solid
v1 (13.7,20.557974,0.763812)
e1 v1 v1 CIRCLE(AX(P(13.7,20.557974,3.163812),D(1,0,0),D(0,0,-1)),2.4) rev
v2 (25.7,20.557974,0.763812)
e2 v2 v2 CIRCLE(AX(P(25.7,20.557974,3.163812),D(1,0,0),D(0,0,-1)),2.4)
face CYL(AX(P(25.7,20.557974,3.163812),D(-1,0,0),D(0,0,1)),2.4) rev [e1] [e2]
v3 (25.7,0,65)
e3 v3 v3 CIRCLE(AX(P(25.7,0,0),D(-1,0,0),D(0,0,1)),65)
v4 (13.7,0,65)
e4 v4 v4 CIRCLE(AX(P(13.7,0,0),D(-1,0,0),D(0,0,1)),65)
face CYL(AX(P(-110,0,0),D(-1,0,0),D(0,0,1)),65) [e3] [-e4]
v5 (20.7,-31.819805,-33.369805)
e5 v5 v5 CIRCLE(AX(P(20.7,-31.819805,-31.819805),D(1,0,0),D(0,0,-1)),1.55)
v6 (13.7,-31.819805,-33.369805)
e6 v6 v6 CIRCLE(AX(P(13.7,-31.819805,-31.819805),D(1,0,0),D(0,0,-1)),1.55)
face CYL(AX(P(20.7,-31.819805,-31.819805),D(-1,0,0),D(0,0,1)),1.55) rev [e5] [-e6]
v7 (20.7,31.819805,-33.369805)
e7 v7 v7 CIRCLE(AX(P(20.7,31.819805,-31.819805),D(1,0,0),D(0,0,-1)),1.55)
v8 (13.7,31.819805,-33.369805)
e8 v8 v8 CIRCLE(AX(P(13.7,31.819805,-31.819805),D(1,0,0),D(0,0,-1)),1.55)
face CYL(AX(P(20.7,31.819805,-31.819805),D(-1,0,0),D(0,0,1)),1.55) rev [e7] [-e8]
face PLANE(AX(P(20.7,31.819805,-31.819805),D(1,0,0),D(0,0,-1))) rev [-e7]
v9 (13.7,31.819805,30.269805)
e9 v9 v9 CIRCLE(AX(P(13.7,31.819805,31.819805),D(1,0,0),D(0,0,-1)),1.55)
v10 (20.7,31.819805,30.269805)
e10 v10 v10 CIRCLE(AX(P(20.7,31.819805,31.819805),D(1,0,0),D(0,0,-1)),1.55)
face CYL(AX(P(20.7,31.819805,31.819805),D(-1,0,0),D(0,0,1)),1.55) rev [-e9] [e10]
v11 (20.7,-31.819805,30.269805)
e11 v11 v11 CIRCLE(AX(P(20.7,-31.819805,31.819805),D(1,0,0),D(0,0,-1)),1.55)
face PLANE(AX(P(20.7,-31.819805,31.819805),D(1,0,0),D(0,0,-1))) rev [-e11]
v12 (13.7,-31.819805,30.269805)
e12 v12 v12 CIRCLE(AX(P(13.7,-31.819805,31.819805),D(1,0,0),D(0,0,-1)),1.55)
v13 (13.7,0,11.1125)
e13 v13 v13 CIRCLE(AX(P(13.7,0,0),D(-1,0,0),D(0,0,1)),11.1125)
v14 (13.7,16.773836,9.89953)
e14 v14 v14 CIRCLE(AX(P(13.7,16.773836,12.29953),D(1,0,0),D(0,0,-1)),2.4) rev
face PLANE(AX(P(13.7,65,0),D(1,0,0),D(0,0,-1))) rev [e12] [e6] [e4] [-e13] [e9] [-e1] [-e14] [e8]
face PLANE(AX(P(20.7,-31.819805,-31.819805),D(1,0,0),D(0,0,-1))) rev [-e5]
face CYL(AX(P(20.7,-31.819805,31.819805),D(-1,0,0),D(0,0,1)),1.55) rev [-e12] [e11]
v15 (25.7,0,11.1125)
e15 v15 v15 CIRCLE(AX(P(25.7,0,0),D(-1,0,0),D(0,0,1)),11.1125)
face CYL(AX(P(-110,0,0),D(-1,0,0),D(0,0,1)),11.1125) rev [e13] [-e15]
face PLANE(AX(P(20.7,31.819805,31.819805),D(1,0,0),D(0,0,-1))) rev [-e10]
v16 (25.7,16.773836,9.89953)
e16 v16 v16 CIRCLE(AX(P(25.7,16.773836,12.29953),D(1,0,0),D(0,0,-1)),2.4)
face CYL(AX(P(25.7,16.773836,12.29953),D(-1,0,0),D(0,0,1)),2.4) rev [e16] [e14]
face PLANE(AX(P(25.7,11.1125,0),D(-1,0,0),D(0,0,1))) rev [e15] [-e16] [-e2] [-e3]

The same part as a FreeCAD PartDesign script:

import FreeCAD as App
import Part
import Sketcher

V = App.Vector

doc = App.newDocument("Part")
body = doc.addObject("PartDesign::Body", "Body")

# Sketch on XY plane
sketch1 = body.newObject("Sketcher::SketchObject", "Sketch")
sketch1.AttachmentSupport = (doc.getObject("XY_Plane"), [""])
sketch1.MapMode = "FlatFace"
sketch1.addGeometry(Part.LineSegment(V(14, 65, 0), V(14, 11, 0)), False)
sketch1.addGeometry(Part.LineSegment(V(14, 11, 0), V(26, 11, 0)), False)
sketch1.addGeometry(Part.LineSegment(V(26, 11, 0), V(26, 65, 0)), False)
sketch1.addGeometry(Part.LineSegment(V(26, 65, 0), V(14, 65, 0)), False)
sketch1.addConstraint(Sketcher.Constraint("Coincident", 0, 2, 1, 1))
sketch1.addConstraint(Sketcher.Constraint("Coincident", 1, 2, 2, 1))
sketch1.addConstraint(Sketcher.Constraint("Coincident", 2, 2, 3, 1))
sketch1.addConstraint(Sketcher.Constraint("Coincident", 3, 2, 0, 1))
sketch1.addConstraint(Sketcher.Constraint("Vertical", 0))
sketch1.addConstraint(Sketcher.Constraint("Horizontal", 1))
sketch1.addConstraint(Sketcher.Constraint("Vertical", 2))
sketch1.addConstraint(Sketcher.Constraint("Horizontal", 3))
sketch1.addConstraint(Sketcher.Constraint("DistanceX", 1, 1, 1, 2, 12.0))
sketch1.addConstraint(Sketcher.Constraint("DistanceY", -1, 1, 2, 2, 65.0))
sketch1.addConstraint(Sketcher.Constraint("DistanceX", -1, 1, 0, 2, 13.7))
sketch1.addConstraint(Sketcher.Constraint("DistanceY", 0, 2, 0, 1, 53.8875))
revolution = body.newObject("PartDesign::Revolution", "Revolution")
revolution.Profile = sketch1
revolution.ReferenceAxis = (sketch1, ["H_Axis"])
revolution.Angle = 360

# Sketch on YZ plane
sketch2 = body.newObject("Sketcher::SketchObject", "Sketch001")
sketch2.AttachmentSupport = (doc.getObject("YZ_Plane"), [""])
sketch2.MapMode = "FlatFace"
sketch2.addGeometry(Part.Circle(V(20.6, 3.2, 0), V(0, 0, 1), 2.4), False)
sketch2.addGeometry(Part.Circle(V(16.8, 12.3, 0), V(0, 0, 1), 2.4), False)
sketch2.addConstraint(Sketcher.Constraint("Equal", 0, 1))
sketch2.addConstraint(Sketcher.Constraint("Diameter", 0, 4.8))
sketch2.addConstraint(Sketcher.Constraint("DistanceY", -1, 1, 1, 3, 12.29953))
sketch2.addConstraint(Sketcher.Constraint("DistanceX", 1, 3, 0, 3, 3.784138))
sketch2.addConstraint(Sketcher.Constraint("DistanceX", -1, 1, 0, 3, 20.557974))
sketch2.addConstraint(Sketcher.Constraint("DistanceY", -1, 1, 0, 3, 3.163812))
pocket1 = body.newObject("PartDesign::Pocket", "Pocket")
pocket1.Profile = sketch2
pocket1.Type = "ThroughAll"
pocket1.Midplane = True

# Sketch on YZ plane
sketch3 = body.newObject("Sketcher::SketchObject", "Sketch002")
sketch3.AttachmentSupport = (doc.getObject("YZ_Plane"), [""])
sketch3.MapMode = "FlatFace"
sketch3.AttachmentOffset = App.Placement(V(0, 0, 13.7), App.Rotation())
sketch3.addGeometry(Part.Circle(V(31.8, 31.8, 0), V(0, 0, 1), 1.6), False)
sketch3.addGeometry(Part.Circle(V(-31.8, 31.8, 0), V(0, 0, 1), 1.6), False)
sketch3.addGeometry(Part.Circle(V(-31.8, -31.8, 0), V(0, 0, 1), 1.6), False)
sketch3.addGeometry(Part.Circle(V(31.8, -31.8, 0), V(0, 0, 1), 1.6), False)
sketch3.addConstraint(Sketcher.Constraint("Equal", 0, 1))
sketch3.addConstraint(Sketcher.Constraint("Equal", 1, 2))
sketch3.addConstraint(Sketcher.Constraint("Equal", 2, 3))
sketch3.addConstraint(Sketcher.Constraint("Symmetric", 0, 3, 2, 3, -1, 1))
sketch3.addConstraint(Sketcher.Constraint("Symmetric", 1, 3, 3, 3, -1, 1))
sketch3.addConstraint(Sketcher.Constraint("Symmetric", 0, 3, 1, 3, -2))
sketch3.addConstraint(Sketcher.Constraint("Diameter", 0, 3.1))
sketch3.addConstraint(Sketcher.Constraint("DistanceX", 1, 3, 0, 3, 63.63961))
sketch3.addConstraint(Sketcher.Constraint("DistanceY", 2, 3, 1, 3, 63.63961))
pocket2 = body.newObject("PartDesign::Pocket", "Pocket001")
pocket2.Profile = sketch3
pocket2.Length = 7
pocket2.Reversed = True

doc.recompute()
